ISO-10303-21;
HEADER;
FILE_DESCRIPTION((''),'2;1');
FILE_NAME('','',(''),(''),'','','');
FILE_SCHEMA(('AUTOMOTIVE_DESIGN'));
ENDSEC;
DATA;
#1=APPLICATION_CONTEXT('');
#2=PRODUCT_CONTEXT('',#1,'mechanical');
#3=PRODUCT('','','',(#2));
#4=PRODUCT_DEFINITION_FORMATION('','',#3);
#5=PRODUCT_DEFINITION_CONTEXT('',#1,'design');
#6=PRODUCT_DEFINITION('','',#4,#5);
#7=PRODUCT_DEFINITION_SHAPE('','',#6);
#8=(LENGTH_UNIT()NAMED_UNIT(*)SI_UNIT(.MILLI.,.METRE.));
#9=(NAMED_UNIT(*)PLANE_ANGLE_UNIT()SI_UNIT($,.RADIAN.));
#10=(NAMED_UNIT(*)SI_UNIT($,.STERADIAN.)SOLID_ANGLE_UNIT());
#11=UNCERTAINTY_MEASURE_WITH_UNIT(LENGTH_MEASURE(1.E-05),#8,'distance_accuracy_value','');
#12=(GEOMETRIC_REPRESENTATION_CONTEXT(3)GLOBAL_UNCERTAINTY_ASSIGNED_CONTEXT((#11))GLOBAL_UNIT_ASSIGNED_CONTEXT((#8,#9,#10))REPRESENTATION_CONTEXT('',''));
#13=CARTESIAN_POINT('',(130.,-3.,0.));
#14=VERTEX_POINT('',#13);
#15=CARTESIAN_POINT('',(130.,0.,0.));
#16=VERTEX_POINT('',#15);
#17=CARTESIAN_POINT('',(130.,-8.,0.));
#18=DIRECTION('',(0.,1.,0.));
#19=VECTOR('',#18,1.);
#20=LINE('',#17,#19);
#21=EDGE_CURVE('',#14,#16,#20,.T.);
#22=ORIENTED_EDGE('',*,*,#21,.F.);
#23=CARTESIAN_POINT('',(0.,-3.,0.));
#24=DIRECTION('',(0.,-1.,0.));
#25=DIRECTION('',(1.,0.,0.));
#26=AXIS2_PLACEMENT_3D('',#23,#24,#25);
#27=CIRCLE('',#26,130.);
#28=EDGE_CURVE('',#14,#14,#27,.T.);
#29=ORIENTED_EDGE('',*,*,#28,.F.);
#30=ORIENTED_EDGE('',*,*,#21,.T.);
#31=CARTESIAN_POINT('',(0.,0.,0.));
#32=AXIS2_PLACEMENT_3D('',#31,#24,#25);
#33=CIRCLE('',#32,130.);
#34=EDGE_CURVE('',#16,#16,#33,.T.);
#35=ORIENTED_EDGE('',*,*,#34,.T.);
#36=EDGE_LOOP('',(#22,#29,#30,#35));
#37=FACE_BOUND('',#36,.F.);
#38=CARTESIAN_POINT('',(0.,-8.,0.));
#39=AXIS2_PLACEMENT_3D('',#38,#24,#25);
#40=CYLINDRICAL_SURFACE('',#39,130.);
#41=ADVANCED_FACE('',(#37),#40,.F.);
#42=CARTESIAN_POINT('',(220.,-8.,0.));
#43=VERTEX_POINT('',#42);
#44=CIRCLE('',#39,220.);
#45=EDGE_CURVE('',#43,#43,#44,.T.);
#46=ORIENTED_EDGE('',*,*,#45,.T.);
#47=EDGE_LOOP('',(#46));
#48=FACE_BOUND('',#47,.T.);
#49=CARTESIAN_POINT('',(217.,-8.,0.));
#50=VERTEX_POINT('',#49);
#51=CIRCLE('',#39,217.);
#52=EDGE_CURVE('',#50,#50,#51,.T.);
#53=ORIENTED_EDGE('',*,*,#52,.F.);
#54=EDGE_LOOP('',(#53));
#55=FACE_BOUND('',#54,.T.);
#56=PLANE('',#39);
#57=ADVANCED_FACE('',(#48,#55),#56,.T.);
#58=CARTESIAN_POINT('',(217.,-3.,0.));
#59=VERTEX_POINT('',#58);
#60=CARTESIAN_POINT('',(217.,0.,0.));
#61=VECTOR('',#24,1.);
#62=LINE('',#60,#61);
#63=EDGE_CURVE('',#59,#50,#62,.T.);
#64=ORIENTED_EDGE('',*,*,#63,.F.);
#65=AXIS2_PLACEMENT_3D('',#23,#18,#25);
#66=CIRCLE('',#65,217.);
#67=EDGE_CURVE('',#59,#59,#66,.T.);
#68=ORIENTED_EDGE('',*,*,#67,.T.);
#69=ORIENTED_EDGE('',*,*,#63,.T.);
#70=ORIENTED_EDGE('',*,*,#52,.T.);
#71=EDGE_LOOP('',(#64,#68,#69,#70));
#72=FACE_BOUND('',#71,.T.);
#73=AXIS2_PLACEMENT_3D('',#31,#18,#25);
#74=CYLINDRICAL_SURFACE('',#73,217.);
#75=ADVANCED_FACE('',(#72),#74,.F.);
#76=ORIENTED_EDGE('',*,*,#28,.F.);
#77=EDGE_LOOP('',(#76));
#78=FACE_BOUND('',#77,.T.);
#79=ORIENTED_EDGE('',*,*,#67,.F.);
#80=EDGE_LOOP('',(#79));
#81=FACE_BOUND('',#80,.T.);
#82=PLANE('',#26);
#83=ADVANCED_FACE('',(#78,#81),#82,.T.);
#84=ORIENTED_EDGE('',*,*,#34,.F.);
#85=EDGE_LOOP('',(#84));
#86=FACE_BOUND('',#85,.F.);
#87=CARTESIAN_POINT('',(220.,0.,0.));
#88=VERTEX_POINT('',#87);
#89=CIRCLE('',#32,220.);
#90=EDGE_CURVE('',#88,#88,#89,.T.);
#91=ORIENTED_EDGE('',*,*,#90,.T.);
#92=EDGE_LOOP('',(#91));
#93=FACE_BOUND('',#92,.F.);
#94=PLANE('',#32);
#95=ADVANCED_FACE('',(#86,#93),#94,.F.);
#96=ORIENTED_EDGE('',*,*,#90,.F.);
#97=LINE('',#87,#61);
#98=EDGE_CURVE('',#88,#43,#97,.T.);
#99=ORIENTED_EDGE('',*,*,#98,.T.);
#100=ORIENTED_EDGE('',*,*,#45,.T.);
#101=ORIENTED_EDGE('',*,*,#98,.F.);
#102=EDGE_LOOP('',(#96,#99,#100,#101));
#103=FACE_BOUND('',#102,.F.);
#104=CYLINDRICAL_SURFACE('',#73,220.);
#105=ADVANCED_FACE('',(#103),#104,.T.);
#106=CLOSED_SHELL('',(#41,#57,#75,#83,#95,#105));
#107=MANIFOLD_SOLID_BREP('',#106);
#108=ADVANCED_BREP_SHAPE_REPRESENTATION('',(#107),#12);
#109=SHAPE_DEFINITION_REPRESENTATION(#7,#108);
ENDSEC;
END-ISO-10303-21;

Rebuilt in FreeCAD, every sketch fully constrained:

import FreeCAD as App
import Part
import Sketcher

V = App.Vector


def faces_at(feature, points):
    """Names of the faces that lie closest to the given points."""
    faces = feature.Shape.Faces
    near = lambda p: min(range(len(faces)), key=lambda i: faces[i].distToShape(Part.Vertex(*p))[0])
    return sorted({f"Face{near(p) + 1}" for p in points})

doc = App.newDocument("Part")
body = doc.addObject("PartDesign::Body", "Body")

# Sketch on XZ plane
sketch1 = doc.addObject("Sketcher::SketchObject", "Sketch")
body.addObject(sketch1)
sketch1.AttachmentSupport = (doc.XZ_Plane, [""])
sketch1.MapMode = "FlatFace"
sketch1.addGeometry(Part.Circle(V(0, 0, 0), V(0, 0, 1), 220), False)
sketch1.addConstraint([
    Sketcher.Constraint("Coincident", 0, 3, -1, 1),
    Sketcher.Constraint("Diameter", 0, 440.0),
])
pad1 = doc.addObject("PartDesign::Pad", "Pad")
body.addObject(pad1)
pad1.Profile = sketch1
pad1.Length = 8
doc.recompute()

thickness = doc.addObject("PartDesign::Thickness", "Thickness")
body.addObject(thickness)
thickness.Base = (pad1, faces_at(pad1, [(0, -8, 0)]))
thickness.Value = 3
thickness.Reversed = True
thickness.Join = "Arc"

# Sketch on XZ plane
sketch2 = doc.addObject("Sketcher::SketchObject", "Sketch001")
body.addObject(sketch2)
sketch2.AttachmentSupport = (doc.XZ_Plane, [""])
sketch2.MapMode = "FlatFace"
sketch2.AttachmentOffset = App.Placement(V(0, 0, 8), App.Rotation())
sketch2.addGeometry(Part.Circle(V(0, 0, 0), V(0, 0, 1), 130), False)
sketch2.addConstraint([
    Sketcher.Constraint("Coincident", 0, 3, -1, 1),
    Sketcher.Constraint("Diameter", 0, 260.0),
])
pocket1 = doc.addObject("PartDesign::Pocket", "Pocket")
body.addObject(pocket1)
pocket1.Profile = sketch2
pocket1.Type = "ThroughAll"

doc.recompute()
